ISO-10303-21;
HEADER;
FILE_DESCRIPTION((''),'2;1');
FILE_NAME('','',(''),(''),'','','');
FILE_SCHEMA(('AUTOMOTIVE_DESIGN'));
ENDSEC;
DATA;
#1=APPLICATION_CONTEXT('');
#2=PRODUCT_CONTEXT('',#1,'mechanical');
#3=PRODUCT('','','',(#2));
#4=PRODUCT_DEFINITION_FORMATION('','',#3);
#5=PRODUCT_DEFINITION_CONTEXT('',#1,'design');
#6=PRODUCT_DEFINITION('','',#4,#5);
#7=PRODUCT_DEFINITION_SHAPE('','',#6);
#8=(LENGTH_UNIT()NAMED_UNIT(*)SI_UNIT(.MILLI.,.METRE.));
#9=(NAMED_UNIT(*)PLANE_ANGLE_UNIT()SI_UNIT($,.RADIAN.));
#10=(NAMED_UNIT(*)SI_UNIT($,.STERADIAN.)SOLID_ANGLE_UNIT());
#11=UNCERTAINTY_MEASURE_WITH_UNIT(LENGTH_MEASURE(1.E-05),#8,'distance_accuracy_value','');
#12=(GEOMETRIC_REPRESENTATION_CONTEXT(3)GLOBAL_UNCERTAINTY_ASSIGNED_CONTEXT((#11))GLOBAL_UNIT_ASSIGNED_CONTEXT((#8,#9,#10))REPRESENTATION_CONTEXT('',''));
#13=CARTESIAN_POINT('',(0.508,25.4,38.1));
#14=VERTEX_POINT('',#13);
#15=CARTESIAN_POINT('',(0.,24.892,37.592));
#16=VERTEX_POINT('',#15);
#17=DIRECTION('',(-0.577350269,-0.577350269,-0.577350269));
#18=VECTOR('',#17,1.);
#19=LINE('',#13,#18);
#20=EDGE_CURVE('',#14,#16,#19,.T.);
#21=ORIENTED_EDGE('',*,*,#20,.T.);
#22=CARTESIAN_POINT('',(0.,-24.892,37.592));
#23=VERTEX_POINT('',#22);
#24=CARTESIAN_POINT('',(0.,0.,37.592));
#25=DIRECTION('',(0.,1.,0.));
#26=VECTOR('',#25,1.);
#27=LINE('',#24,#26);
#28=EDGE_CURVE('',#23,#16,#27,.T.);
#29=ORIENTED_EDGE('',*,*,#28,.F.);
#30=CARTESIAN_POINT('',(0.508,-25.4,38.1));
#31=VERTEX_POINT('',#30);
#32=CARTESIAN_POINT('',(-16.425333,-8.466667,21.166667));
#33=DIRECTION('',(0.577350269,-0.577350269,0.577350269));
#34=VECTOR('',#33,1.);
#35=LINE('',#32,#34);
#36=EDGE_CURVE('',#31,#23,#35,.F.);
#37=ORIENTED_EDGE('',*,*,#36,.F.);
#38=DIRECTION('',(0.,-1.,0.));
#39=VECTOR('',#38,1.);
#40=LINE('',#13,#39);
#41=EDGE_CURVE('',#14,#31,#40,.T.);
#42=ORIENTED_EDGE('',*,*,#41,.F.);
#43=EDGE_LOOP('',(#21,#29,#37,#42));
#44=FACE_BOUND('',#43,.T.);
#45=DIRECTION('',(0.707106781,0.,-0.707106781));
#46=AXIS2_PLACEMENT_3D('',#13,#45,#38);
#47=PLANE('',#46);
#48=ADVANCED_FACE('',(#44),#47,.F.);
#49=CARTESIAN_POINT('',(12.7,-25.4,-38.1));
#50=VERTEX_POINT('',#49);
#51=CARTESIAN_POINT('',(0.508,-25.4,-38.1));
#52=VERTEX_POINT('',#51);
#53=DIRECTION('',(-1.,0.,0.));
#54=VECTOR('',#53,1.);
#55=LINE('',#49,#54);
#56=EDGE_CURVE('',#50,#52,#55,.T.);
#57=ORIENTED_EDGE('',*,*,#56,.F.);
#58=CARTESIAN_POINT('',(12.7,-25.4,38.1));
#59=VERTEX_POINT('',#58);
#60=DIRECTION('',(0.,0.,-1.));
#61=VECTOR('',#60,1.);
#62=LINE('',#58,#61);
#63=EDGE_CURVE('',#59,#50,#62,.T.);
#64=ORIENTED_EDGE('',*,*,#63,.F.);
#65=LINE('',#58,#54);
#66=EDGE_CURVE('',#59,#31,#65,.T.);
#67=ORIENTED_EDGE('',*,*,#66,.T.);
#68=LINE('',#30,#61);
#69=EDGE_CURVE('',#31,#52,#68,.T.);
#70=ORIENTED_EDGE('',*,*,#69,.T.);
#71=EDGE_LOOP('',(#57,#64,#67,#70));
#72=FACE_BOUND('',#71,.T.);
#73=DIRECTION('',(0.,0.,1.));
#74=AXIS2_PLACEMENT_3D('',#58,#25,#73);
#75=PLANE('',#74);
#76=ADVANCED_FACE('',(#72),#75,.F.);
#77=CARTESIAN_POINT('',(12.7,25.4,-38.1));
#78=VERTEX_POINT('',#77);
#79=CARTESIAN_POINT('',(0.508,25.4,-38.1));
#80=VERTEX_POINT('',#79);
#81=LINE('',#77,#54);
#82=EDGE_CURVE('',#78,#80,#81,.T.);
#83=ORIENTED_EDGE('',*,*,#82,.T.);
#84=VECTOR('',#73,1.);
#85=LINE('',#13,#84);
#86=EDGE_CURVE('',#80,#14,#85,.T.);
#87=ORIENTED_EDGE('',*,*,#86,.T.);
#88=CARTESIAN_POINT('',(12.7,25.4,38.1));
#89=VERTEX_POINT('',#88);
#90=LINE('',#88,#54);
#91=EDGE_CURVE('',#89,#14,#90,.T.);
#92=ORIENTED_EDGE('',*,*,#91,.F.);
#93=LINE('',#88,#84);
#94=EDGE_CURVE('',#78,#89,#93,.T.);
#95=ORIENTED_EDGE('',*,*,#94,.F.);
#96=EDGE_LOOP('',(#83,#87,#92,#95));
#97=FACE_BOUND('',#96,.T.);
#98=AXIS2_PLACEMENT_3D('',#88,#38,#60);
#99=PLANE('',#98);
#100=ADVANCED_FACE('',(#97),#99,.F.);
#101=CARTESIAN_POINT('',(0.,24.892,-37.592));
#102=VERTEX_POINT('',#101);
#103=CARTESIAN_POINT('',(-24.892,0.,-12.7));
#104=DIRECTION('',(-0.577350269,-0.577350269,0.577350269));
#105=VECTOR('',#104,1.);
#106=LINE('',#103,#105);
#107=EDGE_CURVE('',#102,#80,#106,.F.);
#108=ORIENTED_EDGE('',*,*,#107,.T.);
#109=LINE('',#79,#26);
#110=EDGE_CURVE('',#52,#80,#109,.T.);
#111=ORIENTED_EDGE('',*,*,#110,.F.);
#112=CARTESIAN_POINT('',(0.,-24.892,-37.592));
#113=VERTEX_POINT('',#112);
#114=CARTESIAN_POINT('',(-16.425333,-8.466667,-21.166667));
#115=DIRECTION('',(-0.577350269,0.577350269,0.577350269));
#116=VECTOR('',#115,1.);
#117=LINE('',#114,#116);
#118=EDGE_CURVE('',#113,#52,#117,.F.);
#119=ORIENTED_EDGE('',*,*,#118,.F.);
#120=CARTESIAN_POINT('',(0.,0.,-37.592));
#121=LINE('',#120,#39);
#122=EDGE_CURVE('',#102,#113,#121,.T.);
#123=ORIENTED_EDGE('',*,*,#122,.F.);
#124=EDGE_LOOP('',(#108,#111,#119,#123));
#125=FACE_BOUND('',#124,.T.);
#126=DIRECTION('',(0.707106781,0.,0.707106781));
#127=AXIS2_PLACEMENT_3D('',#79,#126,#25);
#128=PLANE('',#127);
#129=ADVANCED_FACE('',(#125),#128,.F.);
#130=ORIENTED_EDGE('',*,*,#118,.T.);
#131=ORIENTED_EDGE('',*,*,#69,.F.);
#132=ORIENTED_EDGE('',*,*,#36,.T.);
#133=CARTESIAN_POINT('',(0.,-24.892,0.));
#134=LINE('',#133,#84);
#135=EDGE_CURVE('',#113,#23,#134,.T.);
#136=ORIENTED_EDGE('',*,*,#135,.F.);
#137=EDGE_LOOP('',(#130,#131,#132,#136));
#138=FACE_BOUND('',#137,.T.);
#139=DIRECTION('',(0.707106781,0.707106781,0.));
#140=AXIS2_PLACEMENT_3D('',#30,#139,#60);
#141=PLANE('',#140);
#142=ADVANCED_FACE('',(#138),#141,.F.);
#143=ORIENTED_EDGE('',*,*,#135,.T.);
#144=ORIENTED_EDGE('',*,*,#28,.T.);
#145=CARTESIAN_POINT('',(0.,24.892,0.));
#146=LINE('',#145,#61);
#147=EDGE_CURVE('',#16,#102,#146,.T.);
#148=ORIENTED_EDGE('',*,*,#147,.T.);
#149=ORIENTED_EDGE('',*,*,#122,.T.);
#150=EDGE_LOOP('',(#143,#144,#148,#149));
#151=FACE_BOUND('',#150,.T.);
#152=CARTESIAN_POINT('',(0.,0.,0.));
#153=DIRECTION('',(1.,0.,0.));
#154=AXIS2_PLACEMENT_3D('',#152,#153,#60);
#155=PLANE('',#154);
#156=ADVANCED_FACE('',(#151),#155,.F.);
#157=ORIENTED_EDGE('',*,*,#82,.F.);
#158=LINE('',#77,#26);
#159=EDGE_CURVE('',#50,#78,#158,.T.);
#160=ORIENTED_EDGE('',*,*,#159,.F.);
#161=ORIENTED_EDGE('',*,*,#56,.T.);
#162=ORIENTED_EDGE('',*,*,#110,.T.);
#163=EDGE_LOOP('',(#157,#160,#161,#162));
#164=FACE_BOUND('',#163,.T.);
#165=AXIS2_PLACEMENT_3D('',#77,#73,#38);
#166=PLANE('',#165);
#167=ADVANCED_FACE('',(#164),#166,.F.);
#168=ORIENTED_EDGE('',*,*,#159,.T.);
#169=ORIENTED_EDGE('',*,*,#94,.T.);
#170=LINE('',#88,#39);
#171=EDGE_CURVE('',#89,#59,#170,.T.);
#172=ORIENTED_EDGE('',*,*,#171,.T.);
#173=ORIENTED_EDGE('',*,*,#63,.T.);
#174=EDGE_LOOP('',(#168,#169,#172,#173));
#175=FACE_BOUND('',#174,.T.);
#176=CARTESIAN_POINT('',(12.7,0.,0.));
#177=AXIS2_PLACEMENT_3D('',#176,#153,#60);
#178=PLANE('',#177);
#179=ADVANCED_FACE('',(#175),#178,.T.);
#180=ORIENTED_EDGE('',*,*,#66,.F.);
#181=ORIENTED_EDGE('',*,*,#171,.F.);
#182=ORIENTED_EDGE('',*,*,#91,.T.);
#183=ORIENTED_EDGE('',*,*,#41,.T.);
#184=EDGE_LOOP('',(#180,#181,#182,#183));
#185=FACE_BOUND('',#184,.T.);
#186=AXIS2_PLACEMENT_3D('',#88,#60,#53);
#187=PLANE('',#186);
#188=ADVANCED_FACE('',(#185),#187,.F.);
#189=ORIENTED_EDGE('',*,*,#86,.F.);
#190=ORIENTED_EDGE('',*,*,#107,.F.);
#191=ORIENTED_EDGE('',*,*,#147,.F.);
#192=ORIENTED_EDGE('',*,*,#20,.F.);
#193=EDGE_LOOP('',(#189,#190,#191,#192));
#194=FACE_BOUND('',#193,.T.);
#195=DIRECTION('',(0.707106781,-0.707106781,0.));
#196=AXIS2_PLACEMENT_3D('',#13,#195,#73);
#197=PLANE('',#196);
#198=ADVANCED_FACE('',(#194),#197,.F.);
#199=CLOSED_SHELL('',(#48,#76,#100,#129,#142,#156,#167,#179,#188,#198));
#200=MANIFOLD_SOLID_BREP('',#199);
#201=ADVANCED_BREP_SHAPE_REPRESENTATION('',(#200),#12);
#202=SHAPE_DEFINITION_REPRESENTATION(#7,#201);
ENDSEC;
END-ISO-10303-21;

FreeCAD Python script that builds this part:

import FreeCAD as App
import Part
import Sketcher
Q = App.Units.Quantity


def edges_at(feature, points):
    """Names of the edges that pass closest to the given points."""
    edges = feature.Shape.Edges
    near = lambda p: min(range(len(edges)), key=lambda i: edges[i].distToShape(Part.Vertex(*p))[0])
    return sorted({f"Edge{near(p) + 1}" for p in points})

doc = App.newDocument("Part")
body = doc.addObject("PartDesign::Body", "Body")

# Sketch on YZ plane
sketch1 = body.newObject("Sketcher::SketchObject", "Sketch")
sketch1.AttachmentSupport = (doc.getObject("YZ_Plane"), [""])
sketch1.MapMode = "FlatFace"
sketch1.addGeometry([
    Part.LineSegment(App.Vector(25.4, 38.1, 0), App.Vector(-25.4, 38.1, 0)),
    Part.LineSegment(App.Vector(-25.4, 38.1, 0), App.Vector(-25.4, -38.1, 0)),
    Part.LineSegment(App.Vector(-25.4, -38.1, 0), App.Vector(25.4, -38.1, 0)),
    Part.LineSegment(App.Vector(25.4, -38.1, 0), App.Vector(25.4, 38.1, 0)),
], False)
sketch1.addConstraint([
    Sketcher.Constraint("Coincident", 0, 2, 1, 1),
    Sketcher.Constraint("Coincident", 1, 2, 2, 1),
    Sketcher.Constraint("Coincident", 2, 2, 3, 1),
    Sketcher.Constraint("Coincident", 3, 2, 0, 1),
    Sketcher.Constraint("Horizontal", 0),
    Sketcher.Constraint("Vertical", 1),
    Sketcher.Constraint("Horizontal", 2),
    Sketcher.Constraint("Vertical", 3),
    Sketcher.Constraint("Symmetric", 0, 2, 2, 2, -1, 1),
    Sketcher.Constraint("DistanceX", 0, 2, 0, 1, Q("2 in")),
    Sketcher.Constraint("DistanceY", 1, 2, 1, 1, Q("3 in")),
])
pad1 = body.newObject("PartDesign::Pad", "Pad")
pad1.Profile = sketch1
pad1.Length = Q("0.5 in")
doc.recompute()

chamfer = body.newObject("PartDesign::Chamfer", "Chamfer")
chamfer.Base = (pad1, edges_at(pad1, [
    (0, 25.4, 0),
    (0, 0, -38.1),
    (0, -25.4, 0),
    (0, 0, 38.1),
]))
chamfer.Size = Q("0.02 in")

doc.recompute()
